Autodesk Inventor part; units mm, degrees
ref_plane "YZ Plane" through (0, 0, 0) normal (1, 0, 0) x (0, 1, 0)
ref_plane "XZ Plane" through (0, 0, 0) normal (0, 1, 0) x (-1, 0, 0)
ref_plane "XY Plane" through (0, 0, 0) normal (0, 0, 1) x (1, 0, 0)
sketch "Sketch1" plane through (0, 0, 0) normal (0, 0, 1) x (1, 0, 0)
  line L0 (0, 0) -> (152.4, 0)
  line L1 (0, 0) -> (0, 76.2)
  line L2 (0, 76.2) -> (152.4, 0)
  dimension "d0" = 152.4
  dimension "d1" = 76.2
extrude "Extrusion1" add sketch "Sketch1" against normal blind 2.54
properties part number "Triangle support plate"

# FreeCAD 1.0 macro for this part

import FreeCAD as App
import Part
import Sketcher

V = App.Vector
Q = App.Units.Quantity

doc = App.newDocument("Part")
body = doc.addObject("PartDesign::Body", "Body")

sketch1 = body.newObject("Sketcher::SketchObject", "Sketch")
sketch1.AttachmentSupport = (doc.getObject("XY_Plane"), [""])
sketch1.MapMode = "FlatFace"
sketch1.addGeometry([
    Part.LineSegment(V(0, 76.2, 0), V(0, 0, 0)),
    Part.LineSegment(V(0, 0, 0), V(152.4, 0, 0)),
    Part.LineSegment(V(152.4, 0, 0), V(0, 76.2, 0)),
], False)
sketch1.addConstraint([
    Sketcher.Constraint("Coincident", 0, 2, 1, 1),
    Sketcher.Constraint("Coincident", 1, 2, 2, 1),
    Sketcher.Constraint("Coincident", 2, 2, 0, 1),
    Sketcher.Constraint("Vertical", 0),
    Sketcher.Constraint("Horizontal", 1),
    Sketcher.Constraint("Coincident", 0, 2, -1, 1),
    Sketcher.Constraint("DistanceX", 1, 1, 1, 2, Q("6 in")),
    Sketcher.Constraint("DistanceY", 0, 2, 0, 1, Q("3 in")),
])
pad1 = body.newObject("PartDesign::Pad", "Pad")
pad1.Profile = sketch1
pad1.Length = Q("0.1 in")
pad1.Reversed = True

doc.recompute()
